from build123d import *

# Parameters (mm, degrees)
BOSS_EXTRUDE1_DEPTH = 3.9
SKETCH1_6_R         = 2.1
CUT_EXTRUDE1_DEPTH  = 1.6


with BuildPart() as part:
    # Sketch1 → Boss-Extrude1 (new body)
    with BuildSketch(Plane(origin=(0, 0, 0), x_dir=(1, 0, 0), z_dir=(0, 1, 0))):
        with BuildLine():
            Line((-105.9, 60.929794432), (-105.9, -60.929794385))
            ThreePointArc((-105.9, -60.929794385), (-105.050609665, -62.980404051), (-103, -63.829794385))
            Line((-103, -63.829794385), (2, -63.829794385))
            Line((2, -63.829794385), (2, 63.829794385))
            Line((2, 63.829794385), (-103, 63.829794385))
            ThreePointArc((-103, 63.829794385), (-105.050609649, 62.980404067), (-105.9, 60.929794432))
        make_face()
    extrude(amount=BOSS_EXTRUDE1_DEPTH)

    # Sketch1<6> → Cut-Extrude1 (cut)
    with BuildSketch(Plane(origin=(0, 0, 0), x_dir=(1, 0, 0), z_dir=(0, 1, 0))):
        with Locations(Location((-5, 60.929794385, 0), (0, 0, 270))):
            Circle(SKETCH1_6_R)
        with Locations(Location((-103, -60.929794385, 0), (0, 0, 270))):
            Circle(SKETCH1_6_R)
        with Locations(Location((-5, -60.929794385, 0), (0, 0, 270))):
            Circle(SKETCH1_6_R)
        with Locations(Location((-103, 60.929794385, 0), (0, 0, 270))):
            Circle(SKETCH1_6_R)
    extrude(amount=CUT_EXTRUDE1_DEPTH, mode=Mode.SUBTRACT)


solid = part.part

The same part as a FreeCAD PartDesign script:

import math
import FreeCAD as App
import Part
import Sketcher
from FreeCAD import Vector
Q = App.Units.Quantity

doc = App.newDocument("Part")
body = doc.addObject("PartDesign::Body", "Body")

sketch1 = body.newObject("Sketcher::SketchObject", "Sketch")
sketch1.AttachmentSupport = (doc.getObject("XZ_Plane"), [""])
sketch1.MapMode = "FlatFace"
sketch1.addGeometry([
    Part.LineSegment(Vector(-105.9, -60.929794, 0), Vector(-105.9, 60.929794, 0)),
    Part.ArcOfCircle(Part.Circle(Vector(-103, 60.929794, 0), Vector(0, 0, 1), 2.9), math.radians(90), math.radians(180)),
    Part.LineSegment(Vector(-103, 63.829794, 0), Vector(2, 63.829794, 0)),
    Part.LineSegment(Vector(2, 63.829794, 0), Vector(2, -63.829794, 0)),
    Part.LineSegment(Vector(2, -63.829794, 0), Vector(-103, -63.829794, 0)),
    Part.ArcOfCircle(Part.Circle(Vector(-103, -60.929794, 0), Vector(0, 0, 1), 2.9), math.radians(-179.999999), math.radians(-90)),
], False)
sketch1.addConstraint([
    Sketcher.Constraint("Tangent", 0, 2, 1, 2),
    Sketcher.Constraint("Tangent", 1, 1, 2, 1),
    Sketcher.Constraint("Coincident", 2, 2, 3, 1),
    Sketcher.Constraint("Coincident", 3, 2, 4, 1),
    Sketcher.Constraint("Tangent", 4, 2, 5, 2),
    Sketcher.Constraint("Tangent", 5, 1, 0, 1),
    Sketcher.Constraint("Vertical", 0),
    Sketcher.Constraint("Horizontal", 2),
    Sketcher.Constraint("Vertical", 3),
    Sketcher.Constraint("Horizontal", 4),
    Sketcher.Constraint("Equal", 1, 5),
    Sketcher.Constraint("Radius", 1, Q("2.9 mm")),
    Sketcher.Constraint("DistanceX", 2, 1, 2, 2, Q("105 mm")),
    Sketcher.Constraint("DistanceX", 1, 3, -1, 1, Q("103 mm")),
    Sketcher.Constraint("DistanceY", 0, 1, 0, 2, Q("121.859589 mm")),
    Sketcher.Constraint("DistanceY", -1, 1, 1, 3, Q("60.929794 mm")),
])
pad1 = body.newObject("PartDesign::Pad", "Pad")
pad1.Profile = sketch1
pad1.Length = 3.9
pad1.Reversed = True

sketch2 = body.newObject("Sketcher::SketchObject", "Sketch001")
sketch2.AttachmentSupport = (doc.getObject("XZ_Plane"), [""])
sketch2.MapMode = "FlatFace"
sketch2.addGeometry([
    Part.Circle(Vector(-5, -60.929794, 0), Vector(0, 0, 1), 2.1),
    Part.Circle(Vector(-103, 60.929794, 0), Vector(0, 0, 1), 2.1),
    Part.Circle(Vector(-5, 60.929794, 0), Vector(0, 0, 1), 2.1),
    Part.Circle(Vector(-103, -60.929794, 0), Vector(0, 0, 1), 2.1),
], False)
sketch2.addConstraint([
    Sketcher.Constraint("Equal", 0, 1),
    Sketcher.Constraint("Equal", 1, 2),
    Sketcher.Constraint("Equal", 2, 3),
    Sketcher.Constraint("Symmetric", 0, 3, 2, 3, -1),
    Sketcher.Constraint("Symmetric", 1, 3, 3, 3, -1),
    Sketcher.Constraint("Horizontal", 1, 3, 2, 3),
    Sketcher.Constraint("Diameter", 0, Q("4.2 mm")),
    Sketcher.Constraint("DistanceX", 0, 3, -1, 1, Q("5 mm")),
    Sketcher.Constraint("DistanceX", 1, 3, -1, 1, Q("103 mm")),
    Sketcher.Constraint("DistanceY", 0, 3, 1, 3, Q("121.859589 mm")),
])
pocket1 = body.newObject("PartDesign::Pocket", "Pocket")
pocket1.Profile = sketch2
pocket1.Length = 1.6

doc.recompute()
